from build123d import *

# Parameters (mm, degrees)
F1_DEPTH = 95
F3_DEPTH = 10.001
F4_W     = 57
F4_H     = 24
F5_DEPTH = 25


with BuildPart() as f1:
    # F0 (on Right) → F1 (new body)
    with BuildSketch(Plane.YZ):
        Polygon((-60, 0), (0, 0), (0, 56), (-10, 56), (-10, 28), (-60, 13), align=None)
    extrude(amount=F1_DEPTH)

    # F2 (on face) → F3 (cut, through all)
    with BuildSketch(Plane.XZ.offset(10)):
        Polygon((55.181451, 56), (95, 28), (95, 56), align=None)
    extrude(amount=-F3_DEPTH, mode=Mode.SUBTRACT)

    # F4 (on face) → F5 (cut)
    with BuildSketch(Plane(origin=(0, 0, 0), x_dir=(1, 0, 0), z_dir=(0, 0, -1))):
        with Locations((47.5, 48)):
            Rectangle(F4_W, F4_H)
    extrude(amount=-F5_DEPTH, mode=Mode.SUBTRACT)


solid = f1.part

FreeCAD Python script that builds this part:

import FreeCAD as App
import Part
import Sketcher
Q = App.Units.Quantity

doc = App.newDocument("Part")
body = doc.addObject("PartDesign::Body", "Body")

sketch1 = body.newObject("Sketcher::SketchObject", "Sketch")
sketch1.AttachmentSupport = (doc.getObject("YZ_Plane"), [""])
sketch1.MapMode = "FlatFace"
sketch1.addGeometry([
    Part.LineSegment(App.Vector(-60, 0, 0), App.Vector(0, 0, 0)),
    Part.LineSegment(App.Vector(0, 0, 0), App.Vector(0, 56, 0)),
    Part.LineSegment(App.Vector(0, 56, 0), App.Vector(-10, 56, 0)),
    Part.LineSegment(App.Vector(-10, 56, 0), App.Vector(-10, 28, 0)),
    Part.LineSegment(App.Vector(-10, 28, 0), App.Vector(-60, 13, 0)),
    Part.LineSegment(App.Vector(-60, 13, 0), App.Vector(-60, 0, 0)),
], False)
sketch1.addConstraint([
    Sketcher.Constraint("Coincident", 0, 2, 1, 1),
    Sketcher.Constraint("Coincident", 1, 2, 2, 1),
    Sketcher.Constraint("Coincident", 2, 2, 3, 1),
    Sketcher.Constraint("Coincident", 3, 2, 4, 1),
    Sketcher.Constraint("Coincident", 4, 2, 5, 1),
    Sketcher.Constraint("Coincident", 5, 2, 0, 1),
    Sketcher.Constraint("Horizontal", 0),
    Sketcher.Constraint("Vertical", 1),
    Sketcher.Constraint("Horizontal", 2),
    Sketcher.Constraint("Vertical", 3),
    Sketcher.Constraint("Vertical", 5),
    Sketcher.Constraint("Coincident", 0, 2, -1, 1),
    Sketcher.Constraint("DistanceX", 0, 1, 0, 2, Q("60 mm")),
    Sketcher.Constraint("DistanceX", 2, 2, 2, 1, Q("10 mm")),
    Sketcher.Constraint("DistanceY", 1, 1, 1, 2, Q("56 mm")),
    Sketcher.Constraint("DistanceY", 3, 2, 3, 1, Q("28 mm")),
    Sketcher.Constraint("DistanceY", 5, 2, 5, 1, Q("13 mm")),
])
pad1 = body.newObject("PartDesign::Pad", "Pad")
pad1.Profile = sketch1
pad1.Length = 95

sketch2 = body.newObject("Sketcher::SketchObject", "Sketch001")
sketch2.AttachmentSupport = (doc.getObject("XZ_Plane"), [""])
sketch2.MapMode = "FlatFace"
sketch2.AttachmentOffset = App.Placement(App.Vector(0, 0, 10), App.Rotation())
sketch2.addGeometry([
    Part.LineSegment(App.Vector(55, 56, 0), App.Vector(95, 28, 0)),
    Part.LineSegment(App.Vector(95, 28, 0), App.Vector(95, 56, 0)),
    Part.LineSegment(App.Vector(95, 56, 0), App.Vector(55, 56, 0)),
], False)
sketch2.addConstraint([
    Sketcher.Constraint("Coincident", 0, 2, 1, 1),
    Sketcher.Constraint("Coincident", 1, 2, 2, 1),
    Sketcher.Constraint("Coincident", 2, 2, 0, 1),
    Sketcher.Constraint("Vertical", 1),
    Sketcher.Constraint("Horizontal", 2),
    Sketcher.Constraint("DistanceY", 1, 1, 1, 2, Q("28 mm")),
    Sketcher.Constraint("DistanceX", -1, 1, 0, 2, Q("95 mm")),
    Sketcher.Constraint("DistanceY", -1, 1, 0, 2, Q("28 mm")),
    Sketcher.Constraint("DistanceX", 2, 2, 2, 1, Q("39.818549 mm")),
])
pocket1 = body.newObject("PartDesign::Pocket", "Pocket")
pocket1.Profile = sketch2
pocket1.Type = "ThroughAll"

sketch3 = body.newObject("Sketcher::SketchObject", "Sketch002")
sketch3.AttachmentSupport = (doc.getObject("XY_Plane"), [""])
sketch3.MapMode = "FlatFace"
sketch3.addGeometry([
    Part.LineSegment(App.Vector(19, -60, 0), App.Vector(19, -36, 0)),
    Part.LineSegment(App.Vector(19, -36, 0), App.Vector(76, -36, 0)),
    Part.LineSegment(App.Vector(76, -36, 0), App.Vector(76, -60, 0)),
    Part.LineSegment(App.Vector(76, -60, 0), App.Vector(19, -60, 0)),
], False)
sketch3.addConstraint([
    Sketcher.Constraint("Coincident", 0, 2, 1, 1),
    Sketcher.Constraint("Coincident", 1, 2, 2, 1),
    Sketcher.Constraint("Coincident", 2, 2, 3, 1),
    Sketcher.Constraint("Coincident", 3, 2, 0, 1),
    Sketcher.Constraint("Vertical", 0),
    Sketcher.Constraint("Horizontal", 1),
    Sketcher.Constraint("Vertical", 2),
    Sketcher.Constraint("Horizontal", 3),
    Sketcher.Constraint("DistanceX", 1, 1, 1, 2, Q("57 mm")),
    Sketcher.Constraint("DistanceY", 0, 1, 0, 2, Q("24 mm")),
    Sketcher.Constraint("DistanceX", -1, 1, 0, 2, Q("19 mm")),
    Sketcher.Constraint("DistanceY", 0, 2, -1, 1, Q("36 mm")),
])
pocket2 = body.newObject("PartDesign::Pocket", "Pocket001")
pocket2.Profile = sketch3
pocket2.Length = 25
pocket2.Reversed = True

doc.recompute()
